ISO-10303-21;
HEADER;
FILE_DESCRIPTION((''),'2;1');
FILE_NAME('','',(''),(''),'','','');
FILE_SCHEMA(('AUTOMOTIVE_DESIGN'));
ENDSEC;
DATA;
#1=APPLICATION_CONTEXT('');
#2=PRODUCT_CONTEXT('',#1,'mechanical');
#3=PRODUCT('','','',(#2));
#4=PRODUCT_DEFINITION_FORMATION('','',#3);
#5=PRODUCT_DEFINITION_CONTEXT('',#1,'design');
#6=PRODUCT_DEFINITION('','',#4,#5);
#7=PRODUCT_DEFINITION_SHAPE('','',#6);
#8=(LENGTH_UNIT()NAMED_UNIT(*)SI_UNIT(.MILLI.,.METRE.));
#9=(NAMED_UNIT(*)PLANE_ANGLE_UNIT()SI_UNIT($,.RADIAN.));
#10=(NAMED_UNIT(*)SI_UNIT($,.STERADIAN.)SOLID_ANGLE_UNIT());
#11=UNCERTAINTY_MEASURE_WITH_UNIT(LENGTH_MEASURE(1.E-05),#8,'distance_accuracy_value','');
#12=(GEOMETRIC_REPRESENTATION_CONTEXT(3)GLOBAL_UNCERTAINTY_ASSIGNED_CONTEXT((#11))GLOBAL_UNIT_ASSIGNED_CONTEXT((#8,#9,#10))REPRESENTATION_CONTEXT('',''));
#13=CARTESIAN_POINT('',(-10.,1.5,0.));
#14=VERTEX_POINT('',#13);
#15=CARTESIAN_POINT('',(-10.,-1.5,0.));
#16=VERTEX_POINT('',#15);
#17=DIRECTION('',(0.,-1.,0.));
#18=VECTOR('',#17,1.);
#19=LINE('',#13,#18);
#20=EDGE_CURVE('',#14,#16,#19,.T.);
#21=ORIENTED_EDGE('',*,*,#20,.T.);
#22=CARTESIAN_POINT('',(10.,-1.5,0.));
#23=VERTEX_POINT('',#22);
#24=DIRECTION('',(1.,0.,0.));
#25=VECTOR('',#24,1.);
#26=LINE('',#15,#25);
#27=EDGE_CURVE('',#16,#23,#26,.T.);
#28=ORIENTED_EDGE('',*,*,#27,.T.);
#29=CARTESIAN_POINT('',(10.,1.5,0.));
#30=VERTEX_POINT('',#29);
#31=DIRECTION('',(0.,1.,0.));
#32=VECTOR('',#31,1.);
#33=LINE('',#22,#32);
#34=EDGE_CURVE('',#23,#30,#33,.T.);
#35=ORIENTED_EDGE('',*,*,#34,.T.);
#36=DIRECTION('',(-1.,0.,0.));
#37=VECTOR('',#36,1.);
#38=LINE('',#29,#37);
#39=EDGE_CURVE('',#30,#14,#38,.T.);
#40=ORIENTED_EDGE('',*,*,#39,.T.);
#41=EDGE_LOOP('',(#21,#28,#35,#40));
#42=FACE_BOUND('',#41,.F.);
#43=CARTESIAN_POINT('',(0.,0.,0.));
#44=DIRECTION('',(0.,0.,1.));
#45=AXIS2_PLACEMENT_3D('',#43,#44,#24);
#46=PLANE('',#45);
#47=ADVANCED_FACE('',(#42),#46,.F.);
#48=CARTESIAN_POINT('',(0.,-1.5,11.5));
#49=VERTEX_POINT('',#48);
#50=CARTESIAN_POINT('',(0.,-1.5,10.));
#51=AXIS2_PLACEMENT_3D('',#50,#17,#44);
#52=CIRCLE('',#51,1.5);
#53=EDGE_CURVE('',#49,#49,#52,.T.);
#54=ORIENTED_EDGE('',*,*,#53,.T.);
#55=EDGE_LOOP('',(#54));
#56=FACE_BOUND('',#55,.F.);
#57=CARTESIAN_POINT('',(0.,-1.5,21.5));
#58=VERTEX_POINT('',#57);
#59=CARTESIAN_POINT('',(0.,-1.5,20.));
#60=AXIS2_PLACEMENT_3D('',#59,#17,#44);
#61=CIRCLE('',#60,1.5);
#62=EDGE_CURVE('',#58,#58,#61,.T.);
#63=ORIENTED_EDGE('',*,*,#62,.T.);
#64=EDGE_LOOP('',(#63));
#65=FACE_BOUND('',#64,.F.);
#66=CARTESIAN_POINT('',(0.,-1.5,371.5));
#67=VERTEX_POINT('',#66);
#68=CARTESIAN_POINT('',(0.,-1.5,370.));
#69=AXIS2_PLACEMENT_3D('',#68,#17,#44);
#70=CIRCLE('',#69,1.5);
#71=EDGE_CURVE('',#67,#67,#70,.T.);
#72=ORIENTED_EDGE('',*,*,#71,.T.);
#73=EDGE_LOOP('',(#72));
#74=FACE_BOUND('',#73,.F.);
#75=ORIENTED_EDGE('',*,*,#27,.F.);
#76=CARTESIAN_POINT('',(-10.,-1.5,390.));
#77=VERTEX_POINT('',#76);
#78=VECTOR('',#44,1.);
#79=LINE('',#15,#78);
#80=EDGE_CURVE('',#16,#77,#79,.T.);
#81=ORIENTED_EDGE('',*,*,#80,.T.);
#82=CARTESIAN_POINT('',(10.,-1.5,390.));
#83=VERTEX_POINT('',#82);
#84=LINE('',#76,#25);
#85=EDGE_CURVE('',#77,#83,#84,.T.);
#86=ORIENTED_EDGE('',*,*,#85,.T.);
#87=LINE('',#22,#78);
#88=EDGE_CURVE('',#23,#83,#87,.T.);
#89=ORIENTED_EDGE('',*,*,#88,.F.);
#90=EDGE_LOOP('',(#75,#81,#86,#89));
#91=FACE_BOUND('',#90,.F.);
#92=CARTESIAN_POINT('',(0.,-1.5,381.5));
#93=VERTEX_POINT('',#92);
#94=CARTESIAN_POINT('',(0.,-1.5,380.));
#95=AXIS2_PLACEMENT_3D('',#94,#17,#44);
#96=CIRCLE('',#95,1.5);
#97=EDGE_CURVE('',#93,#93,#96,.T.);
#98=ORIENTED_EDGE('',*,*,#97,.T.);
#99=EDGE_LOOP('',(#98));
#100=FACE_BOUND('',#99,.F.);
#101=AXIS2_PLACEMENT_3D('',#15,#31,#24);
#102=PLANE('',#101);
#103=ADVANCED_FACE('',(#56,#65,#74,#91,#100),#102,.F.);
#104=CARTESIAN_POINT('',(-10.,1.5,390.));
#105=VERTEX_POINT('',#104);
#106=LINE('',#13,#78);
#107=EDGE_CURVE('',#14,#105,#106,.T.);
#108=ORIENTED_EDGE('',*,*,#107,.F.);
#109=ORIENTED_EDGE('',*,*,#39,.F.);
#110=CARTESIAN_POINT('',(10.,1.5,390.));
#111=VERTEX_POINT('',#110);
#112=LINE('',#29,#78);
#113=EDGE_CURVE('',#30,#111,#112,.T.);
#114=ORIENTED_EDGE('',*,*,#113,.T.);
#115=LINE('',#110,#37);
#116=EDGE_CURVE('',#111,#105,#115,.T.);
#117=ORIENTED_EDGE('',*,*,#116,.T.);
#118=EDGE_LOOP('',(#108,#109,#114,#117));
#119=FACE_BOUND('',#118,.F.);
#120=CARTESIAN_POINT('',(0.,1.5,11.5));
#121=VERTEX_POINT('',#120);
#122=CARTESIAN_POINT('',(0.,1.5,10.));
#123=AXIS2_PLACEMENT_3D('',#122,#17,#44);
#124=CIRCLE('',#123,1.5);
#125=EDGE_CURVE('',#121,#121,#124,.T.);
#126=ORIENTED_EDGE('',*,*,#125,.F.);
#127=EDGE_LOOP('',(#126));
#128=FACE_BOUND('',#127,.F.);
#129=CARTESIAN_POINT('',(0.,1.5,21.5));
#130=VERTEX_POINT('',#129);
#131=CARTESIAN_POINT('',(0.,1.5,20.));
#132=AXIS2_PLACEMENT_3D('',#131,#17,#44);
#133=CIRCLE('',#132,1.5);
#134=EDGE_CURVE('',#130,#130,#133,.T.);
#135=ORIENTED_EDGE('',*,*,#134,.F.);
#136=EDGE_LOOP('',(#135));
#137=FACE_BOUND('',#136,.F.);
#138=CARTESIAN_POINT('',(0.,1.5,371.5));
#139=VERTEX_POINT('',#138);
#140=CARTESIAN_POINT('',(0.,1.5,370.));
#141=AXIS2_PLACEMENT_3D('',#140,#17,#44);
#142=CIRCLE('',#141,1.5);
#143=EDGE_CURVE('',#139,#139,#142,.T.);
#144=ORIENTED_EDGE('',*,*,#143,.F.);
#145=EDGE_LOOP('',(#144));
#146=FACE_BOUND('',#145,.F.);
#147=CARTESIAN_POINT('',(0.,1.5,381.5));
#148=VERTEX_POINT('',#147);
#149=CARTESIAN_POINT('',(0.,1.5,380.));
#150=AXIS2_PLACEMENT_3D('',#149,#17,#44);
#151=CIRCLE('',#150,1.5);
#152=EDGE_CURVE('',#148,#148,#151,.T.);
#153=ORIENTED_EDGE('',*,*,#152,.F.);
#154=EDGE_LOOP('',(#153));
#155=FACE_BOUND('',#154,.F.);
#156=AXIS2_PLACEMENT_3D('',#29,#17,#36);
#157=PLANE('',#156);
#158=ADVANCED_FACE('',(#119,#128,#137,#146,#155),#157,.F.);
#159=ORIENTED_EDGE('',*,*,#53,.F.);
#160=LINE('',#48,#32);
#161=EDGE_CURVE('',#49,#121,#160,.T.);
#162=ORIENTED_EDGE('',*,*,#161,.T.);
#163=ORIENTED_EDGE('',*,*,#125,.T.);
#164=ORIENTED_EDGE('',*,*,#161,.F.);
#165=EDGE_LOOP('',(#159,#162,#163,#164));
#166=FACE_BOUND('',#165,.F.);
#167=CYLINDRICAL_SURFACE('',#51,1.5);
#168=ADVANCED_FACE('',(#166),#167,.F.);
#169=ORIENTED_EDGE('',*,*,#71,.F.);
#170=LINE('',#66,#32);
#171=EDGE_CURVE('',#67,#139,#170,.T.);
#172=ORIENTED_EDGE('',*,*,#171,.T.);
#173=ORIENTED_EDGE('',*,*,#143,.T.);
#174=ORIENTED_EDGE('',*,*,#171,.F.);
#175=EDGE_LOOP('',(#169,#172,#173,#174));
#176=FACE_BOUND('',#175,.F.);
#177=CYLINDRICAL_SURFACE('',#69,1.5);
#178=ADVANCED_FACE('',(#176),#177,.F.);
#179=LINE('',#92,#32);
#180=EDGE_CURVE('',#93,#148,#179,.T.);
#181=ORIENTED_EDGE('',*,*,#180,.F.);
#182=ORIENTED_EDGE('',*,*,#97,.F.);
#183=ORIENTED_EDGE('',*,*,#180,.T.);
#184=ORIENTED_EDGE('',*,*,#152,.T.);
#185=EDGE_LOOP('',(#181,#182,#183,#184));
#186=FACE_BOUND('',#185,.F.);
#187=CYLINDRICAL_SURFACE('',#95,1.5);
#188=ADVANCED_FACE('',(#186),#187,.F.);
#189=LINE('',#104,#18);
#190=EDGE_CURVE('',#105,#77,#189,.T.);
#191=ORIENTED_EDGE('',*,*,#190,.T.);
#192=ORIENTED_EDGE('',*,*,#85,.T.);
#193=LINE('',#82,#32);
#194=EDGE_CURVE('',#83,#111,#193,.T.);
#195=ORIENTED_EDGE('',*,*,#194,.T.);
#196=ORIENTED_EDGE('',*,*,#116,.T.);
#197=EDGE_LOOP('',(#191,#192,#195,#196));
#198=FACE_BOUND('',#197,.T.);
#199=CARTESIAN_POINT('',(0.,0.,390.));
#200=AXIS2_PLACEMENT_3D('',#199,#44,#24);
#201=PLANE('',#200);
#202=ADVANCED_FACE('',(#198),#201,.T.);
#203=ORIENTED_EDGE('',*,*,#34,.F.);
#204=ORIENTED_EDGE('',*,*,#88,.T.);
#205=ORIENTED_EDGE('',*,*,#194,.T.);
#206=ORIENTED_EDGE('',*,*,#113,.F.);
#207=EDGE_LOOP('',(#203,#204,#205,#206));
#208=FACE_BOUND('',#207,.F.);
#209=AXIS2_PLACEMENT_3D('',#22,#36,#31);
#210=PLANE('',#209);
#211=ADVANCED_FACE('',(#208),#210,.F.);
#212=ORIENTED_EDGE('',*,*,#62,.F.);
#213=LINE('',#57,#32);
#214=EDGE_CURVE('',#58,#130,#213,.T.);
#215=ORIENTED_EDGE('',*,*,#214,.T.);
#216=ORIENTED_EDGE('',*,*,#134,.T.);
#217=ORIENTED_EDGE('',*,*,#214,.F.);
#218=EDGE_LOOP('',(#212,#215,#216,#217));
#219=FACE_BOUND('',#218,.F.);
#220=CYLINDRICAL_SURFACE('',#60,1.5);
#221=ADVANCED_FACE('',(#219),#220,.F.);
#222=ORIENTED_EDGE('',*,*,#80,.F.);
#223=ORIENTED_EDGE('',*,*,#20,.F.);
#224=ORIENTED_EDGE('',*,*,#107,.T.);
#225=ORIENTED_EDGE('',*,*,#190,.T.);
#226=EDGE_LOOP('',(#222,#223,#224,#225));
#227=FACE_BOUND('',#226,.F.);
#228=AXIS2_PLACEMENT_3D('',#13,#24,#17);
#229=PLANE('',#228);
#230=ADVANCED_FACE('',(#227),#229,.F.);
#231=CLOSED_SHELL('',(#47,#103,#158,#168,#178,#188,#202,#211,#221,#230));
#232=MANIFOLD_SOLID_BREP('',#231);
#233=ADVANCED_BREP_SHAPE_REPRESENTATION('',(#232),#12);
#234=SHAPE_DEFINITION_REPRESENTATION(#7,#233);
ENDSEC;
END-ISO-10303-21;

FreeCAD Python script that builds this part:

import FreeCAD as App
import Part
import Sketcher
from FreeCAD import Vector
Q = App.Units.Quantity

doc = App.newDocument("Part")
body = doc.addObject("PartDesign::Body", "Body")

# Sketch on XY plane
sketch1 = body.newObject("Sketcher::SketchObject", "Sketch")
sketch1.AttachmentSupport = (doc.getObject("XY_Plane"), [""])
sketch1.MapMode = "FlatFace"
sketch1.addGeometry(Part.LineSegment(Vector(-10, 1.5, 0), Vector(-10, -1.5, 0)), False)
sketch1.addGeometry(Part.LineSegment(Vector(-10, -1.5, 0), Vector(10, -1.5, 0)), False)
sketch1.addGeometry(Part.LineSegment(Vector(10, -1.5, 0), Vector(10, 1.5, 0)), False)
sketch1.addGeometry(Part.LineSegment(Vector(10, 1.5, 0), Vector(-10, 1.5, 0)), False)
sketch1.addConstraint(Sketcher.Constraint("Coincident", 0, 2, 1, 1))
sketch1.addConstraint(Sketcher.Constraint("Coincident", 1, 2, 2, 1))
sketch1.addConstraint(Sketcher.Constraint("Coincident", 2, 2, 3, 1))
sketch1.addConstraint(Sketcher.Constraint("Coincident", 3, 2, 0, 1))
sketch1.addConstraint(Sketcher.Constraint("Vertical", 0))
sketch1.addConstraint(Sketcher.Constraint("Horizontal", 1))
sketch1.addConstraint(Sketcher.Constraint("Vertical", 2))
sketch1.addConstraint(Sketcher.Constraint("Horizontal", 3))
sketch1.addConstraint(Sketcher.Constraint("Symmetric", 0, 2, 2, 2, -1, 1))
sketch1.addConstraint(Sketcher.Constraint("DistanceX", 0, 2, -1, 1, Q("10 mm")))
sketch1.addConstraint(Sketcher.Constraint("DistanceY", 0, 2, 0, 1, Q("3 mm")))
pad1 = body.newObject("PartDesign::Pad", "Pad")
pad1.Profile = sketch1
pad1.Length = 390

# Sketch on XZ plane
sketch2 = body.newObject("Sketcher::SketchObject", "Sketch001")
sketch2.AttachmentSupport = (doc.getObject("XZ_Plane"), [""])
sketch2.MapMode = "FlatFace"
sketch2.AttachmentOffset = App.Placement(Vector(0, 0, 1.5), App.Rotation())
sketch2.addGeometry(Part.Circle(Vector(0, 10, 0), Vector(0, 0, 1), 1.5), False)
sketch2.addGeometry(Part.Circle(Vector(0, 20, 0), Vector(0, 0, 1), 1.5), False)
sketch2.addGeometry(Part.Circle(Vector(0, 380, 0), Vector(0, 0, 1), 1.5), False)
sketch2.addGeometry(Part.Circle(Vector(0, 370, 0), Vector(0, 0, 1), 1.5), False)
sketch2.addConstraint(Sketcher.Constraint("Equal", 0, 1))
sketch2.addConstraint(Sketcher.Constraint("Equal", 1, 2))
sketch2.addConstraint(Sketcher.Constraint("Equal", 2, 3))
sketch2.addConstraint(Sketcher.Constraint("PointOnObject", 0, 3, -2))
sketch2.addConstraint(Sketcher.Constraint("PointOnObject", 1, 3, -2))
sketch2.addConstraint(Sketcher.Constraint("PointOnObject", 2, 3, -2))
sketch2.addConstraint(Sketcher.Constraint("PointOnObject", 3, 3, -2))
sketch2.addConstraint(Sketcher.Constraint("Diameter", 0, Q("3 mm")))
sketch2.addConstraint(Sketcher.Constraint("DistanceY", -1, 1, 0, 3, Q("10 mm")))
sketch2.addConstraint(Sketcher.Constraint("DistanceY", -1, 1, 1, 3, Q("20 mm")))
sketch2.addConstraint(Sketcher.Constraint("DistanceY", -1, 1, 2, 3, Q("380 mm")))
sketch2.addConstraint(Sketcher.Constraint("DistanceY", -1, 1, 3, 3, Q("370 mm")))
pocket1 = body.newObject("PartDesign::Pocket", "Pocket")
pocket1.Profile = sketch2
pocket1.Length = 318
pocket1.Midplane = True

doc.recompute()
